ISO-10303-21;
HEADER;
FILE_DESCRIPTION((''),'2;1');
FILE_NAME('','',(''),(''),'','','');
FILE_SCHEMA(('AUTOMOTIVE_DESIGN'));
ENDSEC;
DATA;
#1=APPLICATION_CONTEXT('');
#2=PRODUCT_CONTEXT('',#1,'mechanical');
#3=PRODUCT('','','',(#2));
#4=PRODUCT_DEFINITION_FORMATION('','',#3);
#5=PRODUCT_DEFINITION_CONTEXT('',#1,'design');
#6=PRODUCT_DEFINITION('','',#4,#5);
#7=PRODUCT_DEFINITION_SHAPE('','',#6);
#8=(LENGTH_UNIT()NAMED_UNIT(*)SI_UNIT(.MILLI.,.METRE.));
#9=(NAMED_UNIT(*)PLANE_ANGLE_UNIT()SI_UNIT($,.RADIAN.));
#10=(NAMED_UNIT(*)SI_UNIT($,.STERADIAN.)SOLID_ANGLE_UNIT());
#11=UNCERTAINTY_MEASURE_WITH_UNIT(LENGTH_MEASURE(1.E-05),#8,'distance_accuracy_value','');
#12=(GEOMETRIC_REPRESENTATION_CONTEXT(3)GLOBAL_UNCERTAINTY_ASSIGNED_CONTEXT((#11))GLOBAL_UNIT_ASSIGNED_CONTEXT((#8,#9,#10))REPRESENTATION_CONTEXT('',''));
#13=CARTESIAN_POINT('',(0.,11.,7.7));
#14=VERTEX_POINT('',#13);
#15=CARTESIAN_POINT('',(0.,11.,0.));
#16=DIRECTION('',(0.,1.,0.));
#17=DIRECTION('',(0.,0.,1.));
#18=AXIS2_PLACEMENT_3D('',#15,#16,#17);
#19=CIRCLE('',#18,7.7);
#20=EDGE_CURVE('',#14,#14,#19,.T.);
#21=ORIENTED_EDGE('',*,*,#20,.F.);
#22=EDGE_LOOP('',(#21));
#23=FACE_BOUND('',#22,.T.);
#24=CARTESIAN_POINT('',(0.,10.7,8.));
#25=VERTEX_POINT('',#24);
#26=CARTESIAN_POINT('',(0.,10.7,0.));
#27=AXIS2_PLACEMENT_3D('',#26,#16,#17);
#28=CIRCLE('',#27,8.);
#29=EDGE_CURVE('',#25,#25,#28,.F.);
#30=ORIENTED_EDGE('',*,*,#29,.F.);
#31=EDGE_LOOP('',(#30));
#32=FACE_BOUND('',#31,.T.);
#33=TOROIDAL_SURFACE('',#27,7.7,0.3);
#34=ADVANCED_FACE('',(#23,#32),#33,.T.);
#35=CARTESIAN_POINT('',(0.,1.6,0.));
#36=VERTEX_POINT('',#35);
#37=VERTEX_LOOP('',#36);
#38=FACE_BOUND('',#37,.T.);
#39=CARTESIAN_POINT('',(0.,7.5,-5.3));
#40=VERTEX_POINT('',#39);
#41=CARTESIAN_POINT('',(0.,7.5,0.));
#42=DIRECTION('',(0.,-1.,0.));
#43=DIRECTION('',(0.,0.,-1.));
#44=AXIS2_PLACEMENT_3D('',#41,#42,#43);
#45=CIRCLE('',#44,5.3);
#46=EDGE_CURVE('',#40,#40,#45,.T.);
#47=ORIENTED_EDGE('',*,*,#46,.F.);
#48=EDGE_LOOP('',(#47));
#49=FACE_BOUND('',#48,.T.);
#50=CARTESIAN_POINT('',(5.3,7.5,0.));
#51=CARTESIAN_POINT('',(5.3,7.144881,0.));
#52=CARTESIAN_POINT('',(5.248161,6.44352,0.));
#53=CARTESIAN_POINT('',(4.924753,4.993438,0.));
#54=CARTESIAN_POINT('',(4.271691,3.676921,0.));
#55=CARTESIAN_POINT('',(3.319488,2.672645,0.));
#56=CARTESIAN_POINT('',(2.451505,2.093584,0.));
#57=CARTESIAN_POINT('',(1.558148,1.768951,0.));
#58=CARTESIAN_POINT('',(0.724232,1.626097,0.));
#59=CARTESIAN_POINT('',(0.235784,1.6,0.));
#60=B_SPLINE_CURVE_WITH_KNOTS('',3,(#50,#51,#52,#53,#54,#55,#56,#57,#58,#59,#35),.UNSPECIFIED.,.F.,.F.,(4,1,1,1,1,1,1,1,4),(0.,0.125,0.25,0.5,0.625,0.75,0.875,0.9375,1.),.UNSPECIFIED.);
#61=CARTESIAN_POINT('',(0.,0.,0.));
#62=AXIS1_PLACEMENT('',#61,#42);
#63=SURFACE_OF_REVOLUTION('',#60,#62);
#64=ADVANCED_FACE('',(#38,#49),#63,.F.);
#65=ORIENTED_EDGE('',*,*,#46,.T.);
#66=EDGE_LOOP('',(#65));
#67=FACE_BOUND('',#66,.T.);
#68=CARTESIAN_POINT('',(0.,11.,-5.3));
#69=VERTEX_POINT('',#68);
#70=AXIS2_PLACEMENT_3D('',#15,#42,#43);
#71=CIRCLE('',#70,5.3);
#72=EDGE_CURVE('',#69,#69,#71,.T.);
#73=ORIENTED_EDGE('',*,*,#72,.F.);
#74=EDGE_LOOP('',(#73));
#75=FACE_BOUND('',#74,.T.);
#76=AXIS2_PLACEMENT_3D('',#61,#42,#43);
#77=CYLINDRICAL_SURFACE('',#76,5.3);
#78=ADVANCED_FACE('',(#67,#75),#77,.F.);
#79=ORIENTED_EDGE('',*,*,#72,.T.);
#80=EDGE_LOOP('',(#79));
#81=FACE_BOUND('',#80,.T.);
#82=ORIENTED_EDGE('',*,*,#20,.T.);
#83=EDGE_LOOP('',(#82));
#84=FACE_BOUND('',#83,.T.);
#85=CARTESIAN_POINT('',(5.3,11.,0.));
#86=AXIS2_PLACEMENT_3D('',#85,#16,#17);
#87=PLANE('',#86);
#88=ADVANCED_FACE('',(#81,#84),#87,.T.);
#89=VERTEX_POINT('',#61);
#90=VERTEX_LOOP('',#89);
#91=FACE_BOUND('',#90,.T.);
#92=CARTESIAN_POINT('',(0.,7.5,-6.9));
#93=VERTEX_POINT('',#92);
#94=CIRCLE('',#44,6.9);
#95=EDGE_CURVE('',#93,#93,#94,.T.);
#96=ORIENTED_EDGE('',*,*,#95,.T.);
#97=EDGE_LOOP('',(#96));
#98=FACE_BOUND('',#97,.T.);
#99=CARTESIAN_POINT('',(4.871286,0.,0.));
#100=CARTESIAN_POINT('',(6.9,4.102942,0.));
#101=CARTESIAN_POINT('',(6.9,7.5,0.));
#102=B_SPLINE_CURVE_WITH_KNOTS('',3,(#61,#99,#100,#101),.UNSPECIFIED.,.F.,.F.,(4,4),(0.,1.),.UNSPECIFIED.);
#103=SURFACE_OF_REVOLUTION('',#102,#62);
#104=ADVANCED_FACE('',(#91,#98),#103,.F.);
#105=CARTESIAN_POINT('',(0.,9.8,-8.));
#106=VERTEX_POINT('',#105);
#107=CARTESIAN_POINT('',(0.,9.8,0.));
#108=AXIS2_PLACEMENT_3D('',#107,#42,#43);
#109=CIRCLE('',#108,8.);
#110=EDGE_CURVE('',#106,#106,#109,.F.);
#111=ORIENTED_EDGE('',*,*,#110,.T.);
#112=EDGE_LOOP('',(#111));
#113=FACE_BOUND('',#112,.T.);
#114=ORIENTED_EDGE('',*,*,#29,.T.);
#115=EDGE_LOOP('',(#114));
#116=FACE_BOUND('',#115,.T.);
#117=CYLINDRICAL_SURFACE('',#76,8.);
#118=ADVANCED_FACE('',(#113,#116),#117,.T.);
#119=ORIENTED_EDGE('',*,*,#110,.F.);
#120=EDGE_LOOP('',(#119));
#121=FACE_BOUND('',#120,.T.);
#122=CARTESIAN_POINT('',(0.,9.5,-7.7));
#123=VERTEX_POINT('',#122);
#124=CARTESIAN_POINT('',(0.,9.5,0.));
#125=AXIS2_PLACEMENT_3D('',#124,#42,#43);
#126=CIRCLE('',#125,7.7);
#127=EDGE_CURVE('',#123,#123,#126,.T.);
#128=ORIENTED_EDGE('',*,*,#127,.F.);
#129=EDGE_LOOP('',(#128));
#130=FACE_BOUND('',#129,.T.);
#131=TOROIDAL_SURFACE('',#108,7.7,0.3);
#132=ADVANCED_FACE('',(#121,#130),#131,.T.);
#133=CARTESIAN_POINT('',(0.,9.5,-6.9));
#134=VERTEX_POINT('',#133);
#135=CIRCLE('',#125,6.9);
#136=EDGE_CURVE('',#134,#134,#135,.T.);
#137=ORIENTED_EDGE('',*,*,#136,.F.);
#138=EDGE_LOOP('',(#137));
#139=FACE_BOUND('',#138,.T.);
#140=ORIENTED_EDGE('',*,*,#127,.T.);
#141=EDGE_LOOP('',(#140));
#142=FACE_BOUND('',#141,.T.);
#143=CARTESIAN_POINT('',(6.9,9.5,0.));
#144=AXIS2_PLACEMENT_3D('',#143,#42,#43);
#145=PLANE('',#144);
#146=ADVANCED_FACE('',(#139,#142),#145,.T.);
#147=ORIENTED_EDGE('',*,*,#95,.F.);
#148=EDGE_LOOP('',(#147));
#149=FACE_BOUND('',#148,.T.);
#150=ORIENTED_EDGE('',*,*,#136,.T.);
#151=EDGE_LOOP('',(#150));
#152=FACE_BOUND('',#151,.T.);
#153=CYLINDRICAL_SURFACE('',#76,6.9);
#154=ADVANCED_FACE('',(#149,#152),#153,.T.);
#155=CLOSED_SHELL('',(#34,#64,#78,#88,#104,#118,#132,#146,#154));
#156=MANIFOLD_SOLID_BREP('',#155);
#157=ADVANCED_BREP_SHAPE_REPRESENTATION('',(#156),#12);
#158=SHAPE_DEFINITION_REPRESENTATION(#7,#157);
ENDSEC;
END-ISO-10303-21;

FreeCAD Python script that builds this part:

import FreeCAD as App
import Part
import Sketcher
from FreeCAD import Vector
Q = App.Units.Quantity


def edges_at(feature, points):
    """Names of the edges that pass closest to the given points."""
    edges = feature.Shape.Edges
    near = lambda p: min(range(len(edges)), key=lambda i: edges[i].distToShape(Part.Vertex(*p))[0])
    return sorted({f"Edge{near(p) + 1}" for p in points})

doc = App.newDocument("Part")
params = doc.addObject("Spreadsheet::Sheet", "Params")
for row, (alias, value) in enumerate([
    ("sketch1_height", "2 mm"),
    ("sketch1_width", "1.1 mm"),
    ("sketch1_height2", "1.5 mm"),
    ("revolution_angle", "360 deg"),
    ("fillet_radius", "0.3 mm"),
], start=1):
    params.set(f"A{row}", alias)
    params.set(f"B{row}", "=" + value)
    params.setAlias(f"B{row}", alias)

body = doc.addObject("PartDesign::Body", "Body")

# Sketch on XY plane
sketch1 = body.newObject("Sketcher::SketchObject", "Sketch")
sketch1.AttachmentSupport = (doc.getObject("XY_Plane"), [""])
sketch1.MapMode = "FlatFace"
sketch1.addGeometry(Part.LineSegment(Vector(6.9, 7.5, 0), Vector(6.9, 9.5, 0)), False)
sketch1.addGeometry(Part.LineSegment(Vector(6.9, 9.5, 0), Vector(8, 9.5, 0)), False)
sketch1.addGeometry(Part.LineSegment(Vector(8, 9.5, 0), Vector(8, 11, 0)), False)
sketch1.addGeometry(Part.LineSegment(Vector(8, 11, 0), Vector(5.3, 11, 0)), False)
sketch1.addGeometry(Part.LineSegment(Vector(5.3, 11, 0), Vector(5.3, 7.5, 0)), False)
sketch1.addGeometry(Part.BSplineCurve([Vector(5.3, 7.5, 0), Vector(5.3, 7.144881, 0), Vector(5.248161, 6.44352, 0), Vector(4.924753, 4.993438, 0), Vector(4.271691, 3.676921, 0), Vector(3.319488, 2.672645, 0), Vector(2.451505, 2.093584, 0), Vector(1.558148, 1.768951, 0), Vector(0.724232, 1.626097, 0), Vector(0.235784, 1.6, 0), Vector(0, 1.6, 0)], [4, 1, 1, 1, 1, 1, 1, 1, 4], [0, 0.125, 0.25, 0.5, 0.625, 0.75, 0.875, 0.9375, 1], False, 3, [1, 1, 1, 1, 1, 1, 1, 1, 1, 1, 1], False), False)
sketch1.addGeometry(Part.LineSegment(Vector(0, 1.6, 0), Vector(0, 0, 0)), False)
sketch1.addGeometry(Part.BSplineCurve([Vector(6.9, 7.5, 0), Vector(6.9, 4.102942, 0), Vector(4.871286, 0, 0), Vector(0, 0, 0)], [4, 4], [0, 1], False, 3, [1, 1, 1, 1], False), False)
sketch1.addConstraint(Sketcher.Constraint("Block", 5))
sketch1.addConstraint(Sketcher.Constraint("Block", 7))
sketch1.addConstraint(Sketcher.Constraint("Coincident", 0, 2, 1, 1))
sketch1.addConstraint(Sketcher.Constraint("Coincident", 1, 2, 2, 1))
sketch1.addConstraint(Sketcher.Constraint("Coincident", 2, 2, 3, 1))
sketch1.addConstraint(Sketcher.Constraint("Coincident", 3, 2, 4, 1))
sketch1.addConstraint(Sketcher.Constraint("Coincident", 4, 2, 5, 1))
sketch1.addConstraint(Sketcher.Constraint("Coincident", 5, 2, 6, 1))
sketch1.addConstraint(Sketcher.Constraint("Coincident", 6, 2, 7, 2))
sketch1.addConstraint(Sketcher.Constraint("Coincident", 7, 1, 0, 1))
sketch1.addConstraint(Sketcher.Constraint("Vertical", 0))
sketch1.addConstraint(Sketcher.Constraint("Horizontal", 1))
sketch1.addConstraint(Sketcher.Constraint("Vertical", 2))
sketch1.addConstraint(Sketcher.Constraint("Horizontal", 3))
sketch1.addConstraint(Sketcher.Constraint("Vertical", 4))
sketch1.addConstraint(Sketcher.Constraint("DistanceY", 0, 1, 0, 2, Q("2 mm")))
sketch1.addConstraint(Sketcher.Constraint("DistanceX", 1, 1, 1, 2, Q("1.1 mm")))
sketch1.addConstraint(Sketcher.Constraint("DistanceY", 2, 1, 2, 2, Q("1.5 mm")))
sketch1.setExpression("Constraints[15]", "Params.sketch1_height")
sketch1.setExpression("Constraints[16]", "Params.sketch1_width")
sketch1.setExpression("Constraints[17]", "Params.sketch1_height2")
revolution = body.newObject("PartDesign::Revolution", "Revolution")
revolution.Profile = sketch1
revolution.ReferenceAxis = (sketch1, ["V_Axis"])
revolution.setExpression("Angle", "Params.revolution_angle")
doc.recompute()

fillet = body.newObject("PartDesign::Fillet", "Fillet")
fillet.Base = (revolution, edges_at(revolution, [(0, 11, 8), (0, 9.5, 8)]))
fillet.setExpression("Radius", "Params.fillet_radius")

doc.recompute()
